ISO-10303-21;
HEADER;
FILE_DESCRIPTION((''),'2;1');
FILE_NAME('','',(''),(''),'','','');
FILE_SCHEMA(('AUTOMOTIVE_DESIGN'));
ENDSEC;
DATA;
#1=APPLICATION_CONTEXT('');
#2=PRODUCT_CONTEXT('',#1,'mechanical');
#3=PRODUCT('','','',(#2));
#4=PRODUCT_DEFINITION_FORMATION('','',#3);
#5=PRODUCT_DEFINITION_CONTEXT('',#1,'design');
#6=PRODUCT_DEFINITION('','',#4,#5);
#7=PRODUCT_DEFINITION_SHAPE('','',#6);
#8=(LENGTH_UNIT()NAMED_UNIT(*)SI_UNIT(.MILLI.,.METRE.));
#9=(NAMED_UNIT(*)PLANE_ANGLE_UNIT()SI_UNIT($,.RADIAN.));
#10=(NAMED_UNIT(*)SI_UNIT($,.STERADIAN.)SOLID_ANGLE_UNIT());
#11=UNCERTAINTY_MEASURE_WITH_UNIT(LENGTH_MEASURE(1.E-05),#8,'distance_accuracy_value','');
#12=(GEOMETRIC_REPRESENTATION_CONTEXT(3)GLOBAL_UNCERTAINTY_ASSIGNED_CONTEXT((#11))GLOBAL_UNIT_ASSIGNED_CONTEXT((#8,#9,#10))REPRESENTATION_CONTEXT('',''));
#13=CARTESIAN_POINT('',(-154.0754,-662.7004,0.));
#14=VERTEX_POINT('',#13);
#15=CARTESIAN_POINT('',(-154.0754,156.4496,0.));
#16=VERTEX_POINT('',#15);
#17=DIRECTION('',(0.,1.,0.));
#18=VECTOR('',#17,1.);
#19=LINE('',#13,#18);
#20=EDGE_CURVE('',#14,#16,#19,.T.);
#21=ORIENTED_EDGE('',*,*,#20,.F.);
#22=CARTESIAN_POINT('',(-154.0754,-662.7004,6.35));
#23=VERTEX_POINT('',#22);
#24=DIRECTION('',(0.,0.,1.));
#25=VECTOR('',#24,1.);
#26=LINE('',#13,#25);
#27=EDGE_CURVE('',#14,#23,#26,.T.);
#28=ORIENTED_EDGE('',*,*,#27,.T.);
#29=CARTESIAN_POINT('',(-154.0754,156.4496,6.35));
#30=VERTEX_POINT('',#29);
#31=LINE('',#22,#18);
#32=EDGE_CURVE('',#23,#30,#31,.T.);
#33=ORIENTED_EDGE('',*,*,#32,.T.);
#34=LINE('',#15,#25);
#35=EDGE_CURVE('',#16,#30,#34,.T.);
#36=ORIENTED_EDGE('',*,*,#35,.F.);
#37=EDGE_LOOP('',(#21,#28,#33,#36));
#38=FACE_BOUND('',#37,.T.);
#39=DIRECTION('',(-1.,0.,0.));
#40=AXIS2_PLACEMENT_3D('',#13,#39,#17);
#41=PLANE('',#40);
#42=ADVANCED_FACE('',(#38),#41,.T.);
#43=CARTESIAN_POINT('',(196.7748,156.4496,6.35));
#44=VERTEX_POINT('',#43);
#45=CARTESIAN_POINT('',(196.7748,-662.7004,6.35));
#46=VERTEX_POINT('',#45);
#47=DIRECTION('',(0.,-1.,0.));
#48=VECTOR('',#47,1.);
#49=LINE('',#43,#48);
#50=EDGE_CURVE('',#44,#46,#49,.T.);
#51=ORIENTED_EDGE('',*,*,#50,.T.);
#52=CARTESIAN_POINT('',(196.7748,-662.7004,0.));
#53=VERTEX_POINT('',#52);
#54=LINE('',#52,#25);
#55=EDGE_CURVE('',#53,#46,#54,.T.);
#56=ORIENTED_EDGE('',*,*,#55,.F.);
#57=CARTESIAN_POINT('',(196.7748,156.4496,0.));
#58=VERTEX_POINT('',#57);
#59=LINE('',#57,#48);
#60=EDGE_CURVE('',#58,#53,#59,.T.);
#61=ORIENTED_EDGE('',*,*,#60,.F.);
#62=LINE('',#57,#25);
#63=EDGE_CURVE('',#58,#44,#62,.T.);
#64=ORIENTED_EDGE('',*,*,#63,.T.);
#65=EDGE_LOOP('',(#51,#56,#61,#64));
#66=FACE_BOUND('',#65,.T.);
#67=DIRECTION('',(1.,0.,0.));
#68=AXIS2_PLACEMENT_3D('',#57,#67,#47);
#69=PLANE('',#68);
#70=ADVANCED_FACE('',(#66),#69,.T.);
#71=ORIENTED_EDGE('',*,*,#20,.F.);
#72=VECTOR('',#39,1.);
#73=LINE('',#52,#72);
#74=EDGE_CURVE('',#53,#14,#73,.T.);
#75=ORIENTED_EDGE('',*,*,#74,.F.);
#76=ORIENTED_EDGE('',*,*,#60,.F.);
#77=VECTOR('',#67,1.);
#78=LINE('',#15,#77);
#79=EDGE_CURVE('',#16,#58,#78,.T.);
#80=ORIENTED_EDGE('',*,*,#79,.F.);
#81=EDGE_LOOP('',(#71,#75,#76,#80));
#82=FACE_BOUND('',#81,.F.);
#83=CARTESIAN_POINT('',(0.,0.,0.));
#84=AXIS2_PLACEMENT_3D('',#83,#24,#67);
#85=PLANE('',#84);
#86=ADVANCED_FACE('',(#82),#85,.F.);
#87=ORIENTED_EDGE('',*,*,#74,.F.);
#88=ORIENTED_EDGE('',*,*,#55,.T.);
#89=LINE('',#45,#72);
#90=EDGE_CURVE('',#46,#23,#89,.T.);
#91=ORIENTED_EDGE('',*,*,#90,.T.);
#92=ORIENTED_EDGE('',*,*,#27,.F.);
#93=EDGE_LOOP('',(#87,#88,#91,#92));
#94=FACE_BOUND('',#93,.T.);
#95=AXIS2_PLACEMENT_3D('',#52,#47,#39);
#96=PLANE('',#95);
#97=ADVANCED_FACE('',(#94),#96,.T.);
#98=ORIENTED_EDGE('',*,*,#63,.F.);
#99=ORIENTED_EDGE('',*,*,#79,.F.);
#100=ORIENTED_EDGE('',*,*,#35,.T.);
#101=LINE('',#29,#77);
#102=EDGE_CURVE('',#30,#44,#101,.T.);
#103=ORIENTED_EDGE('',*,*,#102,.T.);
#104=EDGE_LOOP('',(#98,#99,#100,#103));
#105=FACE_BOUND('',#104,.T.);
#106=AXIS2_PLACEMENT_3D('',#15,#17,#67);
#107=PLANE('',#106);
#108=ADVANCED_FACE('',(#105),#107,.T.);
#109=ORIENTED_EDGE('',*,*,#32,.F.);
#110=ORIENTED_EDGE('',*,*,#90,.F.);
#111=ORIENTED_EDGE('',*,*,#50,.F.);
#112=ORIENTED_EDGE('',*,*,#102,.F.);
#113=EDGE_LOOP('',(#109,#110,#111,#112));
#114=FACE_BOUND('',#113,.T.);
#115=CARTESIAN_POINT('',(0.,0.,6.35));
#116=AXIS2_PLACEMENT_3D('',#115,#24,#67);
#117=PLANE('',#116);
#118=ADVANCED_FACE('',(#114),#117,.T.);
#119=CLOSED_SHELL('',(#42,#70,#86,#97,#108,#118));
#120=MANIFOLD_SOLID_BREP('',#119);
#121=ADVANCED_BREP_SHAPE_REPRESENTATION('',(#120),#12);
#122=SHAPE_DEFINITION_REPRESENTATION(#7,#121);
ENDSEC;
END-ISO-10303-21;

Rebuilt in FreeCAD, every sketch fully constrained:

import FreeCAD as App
import Part
import Sketcher

V = App.Vector
Q = App.Units.Quantity


def add_polygon(sketch, points):
    """Adds a closed chain of lines whose ends are joined by coincident constraints."""
    first, n = sketch.GeometryCount, len(points)
    for a, b in zip(points, points[1:] + points[:1]):
        sketch.addGeometry(Part.LineSegment(App.Vector(*a, 0), App.Vector(*b, 0)), False)
    for i in range(n):
        sketch.addConstraint(Sketcher.Constraint("Coincident", first + i, 2, first + (i + 1) % n, 1))

doc = App.newDocument("Part")
body = doc.addObject("PartDesign::Body", "Body")

sketch1 = body.newObject("Sketcher::SketchObject", "Sketch")
sketch1.AttachmentSupport = (doc.getObject("XY_Plane"), [""])
sketch1.MapMode = "FlatFace"
add_polygon(sketch1, [(197, 156), (-154, 156), (-154, -663), (197, -663)])
sketch1.addConstraint(Sketcher.Constraint("Horizontal", 0))
sketch1.addConstraint(Sketcher.Constraint("Vertical", 1))
sketch1.addConstraint(Sketcher.Constraint("Horizontal", 2))
sketch1.addConstraint(Sketcher.Constraint("Vertical", 3))
sketch1.addConstraint(Sketcher.Constraint("DistanceY", 1, 2, 1, 1, Q("32.25 in")))
sketch1.addConstraint(Sketcher.Constraint("DistanceX", 0, 2, 0, 1, Q("13.813 in")))
sketch1.addConstraint(Sketcher.Constraint("DistanceX", 0, 2, -1, 1, 154.0754))
sketch1.addConstraint(Sketcher.Constraint("DistanceY", -1, 1, 0, 2, 156.4496))
pad1 = body.newObject("PartDesign::Pad", "Pad")
pad1.Profile = sketch1
pad1.Length = Q("0.25 in")

doc.recompute()
